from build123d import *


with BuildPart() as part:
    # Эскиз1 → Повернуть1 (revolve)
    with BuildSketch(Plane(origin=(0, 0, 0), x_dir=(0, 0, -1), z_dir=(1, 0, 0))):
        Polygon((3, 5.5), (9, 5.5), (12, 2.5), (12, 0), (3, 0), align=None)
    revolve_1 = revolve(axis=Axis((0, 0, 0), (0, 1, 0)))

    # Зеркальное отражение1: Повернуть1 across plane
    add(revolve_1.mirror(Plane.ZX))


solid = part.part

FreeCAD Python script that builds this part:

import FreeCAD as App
import Part
import Sketcher
from FreeCAD import Vector
Q = App.Units.Quantity

doc = App.newDocument("Part")
body = doc.addObject("PartDesign::Body", "Body")

sketch1 = doc.addObject("Sketcher::SketchObject", "Sketch")
body.addObject(sketch1)
sketch1.AttachmentSupport = (doc.YZ_Plane, [""])
sketch1.MapMode = "FlatFace"
sketch1.addGeometry(Part.LineSegment(Vector(5.5, -9, 0), Vector(5.5, -3, 0)), False)
sketch1.addGeometry(Part.LineSegment(Vector(5.5, -3, 0), Vector(0, -3, 0)), False)
sketch1.addGeometry(Part.LineSegment(Vector(0, -3, 0), Vector(0, -12, 0)), False)
sketch1.addGeometry(Part.LineSegment(Vector(0, -12, 0), Vector(2.5, -12, 0)), False)
sketch1.addGeometry(Part.LineSegment(Vector(2.5, -12, 0), Vector(5.5, -9, 0)), False)
sketch1.addConstraint(Sketcher.Constraint("Coincident", 0, 2, 1, 1))
sketch1.addConstraint(Sketcher.Constraint("Coincident", 1, 2, 2, 1))
sketch1.addConstraint(Sketcher.Constraint("Coincident", 2, 2, 3, 1))
sketch1.addConstraint(Sketcher.Constraint("Coincident", 3, 2, 4, 1))
sketch1.addConstraint(Sketcher.Constraint("Coincident", 4, 2, 0, 1))
sketch1.addConstraint(Sketcher.Constraint("Vertical", 0))
sketch1.addConstraint(Sketcher.Constraint("Horizontal", 1))
sketch1.addConstraint(Sketcher.Constraint("Vertical", 2))
sketch1.addConstraint(Sketcher.Constraint("Horizontal", 3))
sketch1.addConstraint(Sketcher.Constraint("PointOnObject", 1, 2, -2))
sketch1.addConstraint(Sketcher.Constraint("DistanceY", 0, 1, 0, 2, 6.0))
sketch1.addConstraint(Sketcher.Constraint("DistanceY", 2, 2, 2, 1, 9.0))
sketch1.addConstraint(Sketcher.Constraint("Angle", 4, Q("45 deg")))
sketch1.addConstraint(Sketcher.Constraint("DistanceX", 1, 2, 1, 1, 5.5))
sketch1.addConstraint(Sketcher.Constraint("DistanceY", 0, 2, -1, 1, 3.0))
revolution = doc.addObject("PartDesign::Revolution", "Revolution")
body.addObject(revolution)
revolution.Profile = sketch1
revolution.ReferenceAxis = (sketch1, ["H_Axis"])
revolution.Angle = 360
doc.recompute()

mirrored = doc.addObject("PartDesign::Mirrored", "Mirrored")
body.addObject(mirrored)
mirrored.Originals = [revolution]
mirrored.MirrorPlane = (doc.XZ_Plane, [""])
body.Tip = mirrored

doc.recompute()
